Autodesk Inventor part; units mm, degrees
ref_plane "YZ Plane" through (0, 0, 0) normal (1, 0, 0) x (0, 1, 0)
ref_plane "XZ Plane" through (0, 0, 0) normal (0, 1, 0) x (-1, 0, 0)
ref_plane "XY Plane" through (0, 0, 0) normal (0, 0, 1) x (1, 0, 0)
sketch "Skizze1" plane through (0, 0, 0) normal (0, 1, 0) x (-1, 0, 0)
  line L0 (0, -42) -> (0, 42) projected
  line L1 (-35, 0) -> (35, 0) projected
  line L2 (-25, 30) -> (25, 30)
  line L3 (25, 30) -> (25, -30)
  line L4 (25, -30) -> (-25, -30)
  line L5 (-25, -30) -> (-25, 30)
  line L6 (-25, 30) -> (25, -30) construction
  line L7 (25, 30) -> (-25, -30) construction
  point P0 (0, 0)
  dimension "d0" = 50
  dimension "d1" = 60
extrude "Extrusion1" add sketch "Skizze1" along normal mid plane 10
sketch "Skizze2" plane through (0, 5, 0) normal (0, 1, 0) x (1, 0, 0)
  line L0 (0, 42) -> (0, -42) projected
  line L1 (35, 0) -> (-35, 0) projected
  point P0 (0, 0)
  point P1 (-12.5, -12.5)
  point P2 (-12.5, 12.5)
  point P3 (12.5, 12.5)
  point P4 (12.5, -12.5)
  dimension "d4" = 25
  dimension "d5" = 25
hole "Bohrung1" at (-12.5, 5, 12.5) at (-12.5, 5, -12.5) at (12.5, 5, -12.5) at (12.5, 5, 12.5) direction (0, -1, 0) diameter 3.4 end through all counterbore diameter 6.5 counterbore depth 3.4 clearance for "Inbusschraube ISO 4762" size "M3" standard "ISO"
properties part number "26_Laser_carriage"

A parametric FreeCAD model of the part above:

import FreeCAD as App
import Part
import Sketcher
from FreeCAD import Vector


def add_polygon(sketch, points):
    """Adds a closed chain of lines whose ends are joined by coincident constraints."""
    first, n = sketch.GeometryCount, len(points)
    for a, b in zip(points, points[1:] + points[:1]):
        sketch.addGeometry(Part.LineSegment(App.Vector(*a, 0), App.Vector(*b, 0)), False)
    for i in range(n):
        sketch.addConstraint(Sketcher.Constraint("Coincident", first + i, 2, first + (i + 1) % n, 1))

doc = App.newDocument("Part")
params = doc.addObject("Spreadsheet::Sheet", "Params")
for row, (alias, value) in enumerate([
    ("sketch1_width", "50 mm"),
    ("sketch1_height", "60 mm"),
    ("pad1_length", "10 mm"),
    ("sketch2_diameter", "3.4 mm"),
    ("hole_diameter", "3.4 mm"),
    ("hole_cbore_diameter", "6.5 mm"),
    ("hole_cbore_depth", "3.4 mm"),
], start=1):
    params.set(f"A{row}", alias)
    params.set(f"B{row}", "=" + value)
    params.setAlias(f"B{row}", alias)

body = doc.addObject("PartDesign::Body", "Body")

sketch1 = doc.addObject("Sketcher::SketchObject", "Sketch")
body.addObject(sketch1)
sketch1.AttachmentSupport = (doc.XZ_Plane, [""])
sketch1.MapMode = "FlatFace"
add_polygon(sketch1, [(25, -30), (-25, -30), (-25, 30), (25, 30)])
sketch1.addConstraint([
    Sketcher.Constraint("Horizontal", 0),
    Sketcher.Constraint("Vertical", 1),
    Sketcher.Constraint("Horizontal", 2),
    Sketcher.Constraint("Vertical", 3),
    Sketcher.Constraint("Symmetric", 0, 2, 2, 2, -1, 1),
    Sketcher.Constraint("DistanceX", 0, 2, 0, 1, 50.0),
    Sketcher.Constraint("DistanceY", 1, 1, 1, 2, 60.0),
])
sketch1.setExpression("Constraints[9]", "Params.sketch1_width")
sketch1.setExpression("Constraints[10]", "Params.sketch1_height")
pad1 = doc.addObject("PartDesign::Pad", "Pad")
body.addObject(pad1)
pad1.Profile = sketch1
pad1.setExpression("Length", "Params.pad1_length")
pad1.Midplane = True

sketch2 = doc.addObject("Sketcher::SketchObject", "Sketch001")
body.addObject(sketch2)
sketch2.AttachmentSupport = (doc.XZ_Plane, [""])
sketch2.MapMode = "FlatFace"
sketch2.AttachmentOffset = App.Placement(Vector(0, 0, -5), App.Rotation())
sketch2.addGeometry([
    Part.Circle(Vector(-12.5, 12.5, 0), Vector(0, 0, 1), 1.7),
    Part.Circle(Vector(-12.5, -12.5, 0), Vector(0, 0, 1), 1.7),
    Part.Circle(Vector(12.5, -12.5, 0), Vector(0, 0, 1), 1.7),
    Part.Circle(Vector(12.5, 12.5, 0), Vector(0, 0, 1), 1.7),
], False)
sketch2.addConstraint([
    Sketcher.Constraint("Equal", 0, 1),
    Sketcher.Constraint("Equal", 1, 2),
    Sketcher.Constraint("Equal", 2, 3),
    Sketcher.Constraint("Symmetric", 0, 3, 2, 3, -1, 1),
    Sketcher.Constraint("Symmetric", 1, 3, 3, 3, -1, 1),
    Sketcher.Constraint("Symmetric", 1, 3, 2, 3, -2),
    Sketcher.Constraint("Diameter", 0, 3.4),
    Sketcher.Constraint("DistanceY", 1, 3, 0, 3, 25.0),
    Sketcher.Constraint("DistanceX", 1, 3, 2, 3, 25.0),
])
sketch2.setExpression("Constraints[6]", "Params.sketch2_diameter")
doc.recompute()
hole = doc.addObject("PartDesign::Hole", "Hole")
body.addObject(hole)
hole.Profile = sketch2
hole.ThreadType = "None"
hole.setExpression("Diameter", "Params.hole_diameter")
hole.DepthType = "ThroughAll"
hole.HoleCutType = "Counterbore"
hole.setExpression("HoleCutDiameter", "Params.hole_cbore_diameter")
hole.setExpression("HoleCutDepth", "Params.hole_cbore_depth")
hole.Reversed = True

doc.recompute()
